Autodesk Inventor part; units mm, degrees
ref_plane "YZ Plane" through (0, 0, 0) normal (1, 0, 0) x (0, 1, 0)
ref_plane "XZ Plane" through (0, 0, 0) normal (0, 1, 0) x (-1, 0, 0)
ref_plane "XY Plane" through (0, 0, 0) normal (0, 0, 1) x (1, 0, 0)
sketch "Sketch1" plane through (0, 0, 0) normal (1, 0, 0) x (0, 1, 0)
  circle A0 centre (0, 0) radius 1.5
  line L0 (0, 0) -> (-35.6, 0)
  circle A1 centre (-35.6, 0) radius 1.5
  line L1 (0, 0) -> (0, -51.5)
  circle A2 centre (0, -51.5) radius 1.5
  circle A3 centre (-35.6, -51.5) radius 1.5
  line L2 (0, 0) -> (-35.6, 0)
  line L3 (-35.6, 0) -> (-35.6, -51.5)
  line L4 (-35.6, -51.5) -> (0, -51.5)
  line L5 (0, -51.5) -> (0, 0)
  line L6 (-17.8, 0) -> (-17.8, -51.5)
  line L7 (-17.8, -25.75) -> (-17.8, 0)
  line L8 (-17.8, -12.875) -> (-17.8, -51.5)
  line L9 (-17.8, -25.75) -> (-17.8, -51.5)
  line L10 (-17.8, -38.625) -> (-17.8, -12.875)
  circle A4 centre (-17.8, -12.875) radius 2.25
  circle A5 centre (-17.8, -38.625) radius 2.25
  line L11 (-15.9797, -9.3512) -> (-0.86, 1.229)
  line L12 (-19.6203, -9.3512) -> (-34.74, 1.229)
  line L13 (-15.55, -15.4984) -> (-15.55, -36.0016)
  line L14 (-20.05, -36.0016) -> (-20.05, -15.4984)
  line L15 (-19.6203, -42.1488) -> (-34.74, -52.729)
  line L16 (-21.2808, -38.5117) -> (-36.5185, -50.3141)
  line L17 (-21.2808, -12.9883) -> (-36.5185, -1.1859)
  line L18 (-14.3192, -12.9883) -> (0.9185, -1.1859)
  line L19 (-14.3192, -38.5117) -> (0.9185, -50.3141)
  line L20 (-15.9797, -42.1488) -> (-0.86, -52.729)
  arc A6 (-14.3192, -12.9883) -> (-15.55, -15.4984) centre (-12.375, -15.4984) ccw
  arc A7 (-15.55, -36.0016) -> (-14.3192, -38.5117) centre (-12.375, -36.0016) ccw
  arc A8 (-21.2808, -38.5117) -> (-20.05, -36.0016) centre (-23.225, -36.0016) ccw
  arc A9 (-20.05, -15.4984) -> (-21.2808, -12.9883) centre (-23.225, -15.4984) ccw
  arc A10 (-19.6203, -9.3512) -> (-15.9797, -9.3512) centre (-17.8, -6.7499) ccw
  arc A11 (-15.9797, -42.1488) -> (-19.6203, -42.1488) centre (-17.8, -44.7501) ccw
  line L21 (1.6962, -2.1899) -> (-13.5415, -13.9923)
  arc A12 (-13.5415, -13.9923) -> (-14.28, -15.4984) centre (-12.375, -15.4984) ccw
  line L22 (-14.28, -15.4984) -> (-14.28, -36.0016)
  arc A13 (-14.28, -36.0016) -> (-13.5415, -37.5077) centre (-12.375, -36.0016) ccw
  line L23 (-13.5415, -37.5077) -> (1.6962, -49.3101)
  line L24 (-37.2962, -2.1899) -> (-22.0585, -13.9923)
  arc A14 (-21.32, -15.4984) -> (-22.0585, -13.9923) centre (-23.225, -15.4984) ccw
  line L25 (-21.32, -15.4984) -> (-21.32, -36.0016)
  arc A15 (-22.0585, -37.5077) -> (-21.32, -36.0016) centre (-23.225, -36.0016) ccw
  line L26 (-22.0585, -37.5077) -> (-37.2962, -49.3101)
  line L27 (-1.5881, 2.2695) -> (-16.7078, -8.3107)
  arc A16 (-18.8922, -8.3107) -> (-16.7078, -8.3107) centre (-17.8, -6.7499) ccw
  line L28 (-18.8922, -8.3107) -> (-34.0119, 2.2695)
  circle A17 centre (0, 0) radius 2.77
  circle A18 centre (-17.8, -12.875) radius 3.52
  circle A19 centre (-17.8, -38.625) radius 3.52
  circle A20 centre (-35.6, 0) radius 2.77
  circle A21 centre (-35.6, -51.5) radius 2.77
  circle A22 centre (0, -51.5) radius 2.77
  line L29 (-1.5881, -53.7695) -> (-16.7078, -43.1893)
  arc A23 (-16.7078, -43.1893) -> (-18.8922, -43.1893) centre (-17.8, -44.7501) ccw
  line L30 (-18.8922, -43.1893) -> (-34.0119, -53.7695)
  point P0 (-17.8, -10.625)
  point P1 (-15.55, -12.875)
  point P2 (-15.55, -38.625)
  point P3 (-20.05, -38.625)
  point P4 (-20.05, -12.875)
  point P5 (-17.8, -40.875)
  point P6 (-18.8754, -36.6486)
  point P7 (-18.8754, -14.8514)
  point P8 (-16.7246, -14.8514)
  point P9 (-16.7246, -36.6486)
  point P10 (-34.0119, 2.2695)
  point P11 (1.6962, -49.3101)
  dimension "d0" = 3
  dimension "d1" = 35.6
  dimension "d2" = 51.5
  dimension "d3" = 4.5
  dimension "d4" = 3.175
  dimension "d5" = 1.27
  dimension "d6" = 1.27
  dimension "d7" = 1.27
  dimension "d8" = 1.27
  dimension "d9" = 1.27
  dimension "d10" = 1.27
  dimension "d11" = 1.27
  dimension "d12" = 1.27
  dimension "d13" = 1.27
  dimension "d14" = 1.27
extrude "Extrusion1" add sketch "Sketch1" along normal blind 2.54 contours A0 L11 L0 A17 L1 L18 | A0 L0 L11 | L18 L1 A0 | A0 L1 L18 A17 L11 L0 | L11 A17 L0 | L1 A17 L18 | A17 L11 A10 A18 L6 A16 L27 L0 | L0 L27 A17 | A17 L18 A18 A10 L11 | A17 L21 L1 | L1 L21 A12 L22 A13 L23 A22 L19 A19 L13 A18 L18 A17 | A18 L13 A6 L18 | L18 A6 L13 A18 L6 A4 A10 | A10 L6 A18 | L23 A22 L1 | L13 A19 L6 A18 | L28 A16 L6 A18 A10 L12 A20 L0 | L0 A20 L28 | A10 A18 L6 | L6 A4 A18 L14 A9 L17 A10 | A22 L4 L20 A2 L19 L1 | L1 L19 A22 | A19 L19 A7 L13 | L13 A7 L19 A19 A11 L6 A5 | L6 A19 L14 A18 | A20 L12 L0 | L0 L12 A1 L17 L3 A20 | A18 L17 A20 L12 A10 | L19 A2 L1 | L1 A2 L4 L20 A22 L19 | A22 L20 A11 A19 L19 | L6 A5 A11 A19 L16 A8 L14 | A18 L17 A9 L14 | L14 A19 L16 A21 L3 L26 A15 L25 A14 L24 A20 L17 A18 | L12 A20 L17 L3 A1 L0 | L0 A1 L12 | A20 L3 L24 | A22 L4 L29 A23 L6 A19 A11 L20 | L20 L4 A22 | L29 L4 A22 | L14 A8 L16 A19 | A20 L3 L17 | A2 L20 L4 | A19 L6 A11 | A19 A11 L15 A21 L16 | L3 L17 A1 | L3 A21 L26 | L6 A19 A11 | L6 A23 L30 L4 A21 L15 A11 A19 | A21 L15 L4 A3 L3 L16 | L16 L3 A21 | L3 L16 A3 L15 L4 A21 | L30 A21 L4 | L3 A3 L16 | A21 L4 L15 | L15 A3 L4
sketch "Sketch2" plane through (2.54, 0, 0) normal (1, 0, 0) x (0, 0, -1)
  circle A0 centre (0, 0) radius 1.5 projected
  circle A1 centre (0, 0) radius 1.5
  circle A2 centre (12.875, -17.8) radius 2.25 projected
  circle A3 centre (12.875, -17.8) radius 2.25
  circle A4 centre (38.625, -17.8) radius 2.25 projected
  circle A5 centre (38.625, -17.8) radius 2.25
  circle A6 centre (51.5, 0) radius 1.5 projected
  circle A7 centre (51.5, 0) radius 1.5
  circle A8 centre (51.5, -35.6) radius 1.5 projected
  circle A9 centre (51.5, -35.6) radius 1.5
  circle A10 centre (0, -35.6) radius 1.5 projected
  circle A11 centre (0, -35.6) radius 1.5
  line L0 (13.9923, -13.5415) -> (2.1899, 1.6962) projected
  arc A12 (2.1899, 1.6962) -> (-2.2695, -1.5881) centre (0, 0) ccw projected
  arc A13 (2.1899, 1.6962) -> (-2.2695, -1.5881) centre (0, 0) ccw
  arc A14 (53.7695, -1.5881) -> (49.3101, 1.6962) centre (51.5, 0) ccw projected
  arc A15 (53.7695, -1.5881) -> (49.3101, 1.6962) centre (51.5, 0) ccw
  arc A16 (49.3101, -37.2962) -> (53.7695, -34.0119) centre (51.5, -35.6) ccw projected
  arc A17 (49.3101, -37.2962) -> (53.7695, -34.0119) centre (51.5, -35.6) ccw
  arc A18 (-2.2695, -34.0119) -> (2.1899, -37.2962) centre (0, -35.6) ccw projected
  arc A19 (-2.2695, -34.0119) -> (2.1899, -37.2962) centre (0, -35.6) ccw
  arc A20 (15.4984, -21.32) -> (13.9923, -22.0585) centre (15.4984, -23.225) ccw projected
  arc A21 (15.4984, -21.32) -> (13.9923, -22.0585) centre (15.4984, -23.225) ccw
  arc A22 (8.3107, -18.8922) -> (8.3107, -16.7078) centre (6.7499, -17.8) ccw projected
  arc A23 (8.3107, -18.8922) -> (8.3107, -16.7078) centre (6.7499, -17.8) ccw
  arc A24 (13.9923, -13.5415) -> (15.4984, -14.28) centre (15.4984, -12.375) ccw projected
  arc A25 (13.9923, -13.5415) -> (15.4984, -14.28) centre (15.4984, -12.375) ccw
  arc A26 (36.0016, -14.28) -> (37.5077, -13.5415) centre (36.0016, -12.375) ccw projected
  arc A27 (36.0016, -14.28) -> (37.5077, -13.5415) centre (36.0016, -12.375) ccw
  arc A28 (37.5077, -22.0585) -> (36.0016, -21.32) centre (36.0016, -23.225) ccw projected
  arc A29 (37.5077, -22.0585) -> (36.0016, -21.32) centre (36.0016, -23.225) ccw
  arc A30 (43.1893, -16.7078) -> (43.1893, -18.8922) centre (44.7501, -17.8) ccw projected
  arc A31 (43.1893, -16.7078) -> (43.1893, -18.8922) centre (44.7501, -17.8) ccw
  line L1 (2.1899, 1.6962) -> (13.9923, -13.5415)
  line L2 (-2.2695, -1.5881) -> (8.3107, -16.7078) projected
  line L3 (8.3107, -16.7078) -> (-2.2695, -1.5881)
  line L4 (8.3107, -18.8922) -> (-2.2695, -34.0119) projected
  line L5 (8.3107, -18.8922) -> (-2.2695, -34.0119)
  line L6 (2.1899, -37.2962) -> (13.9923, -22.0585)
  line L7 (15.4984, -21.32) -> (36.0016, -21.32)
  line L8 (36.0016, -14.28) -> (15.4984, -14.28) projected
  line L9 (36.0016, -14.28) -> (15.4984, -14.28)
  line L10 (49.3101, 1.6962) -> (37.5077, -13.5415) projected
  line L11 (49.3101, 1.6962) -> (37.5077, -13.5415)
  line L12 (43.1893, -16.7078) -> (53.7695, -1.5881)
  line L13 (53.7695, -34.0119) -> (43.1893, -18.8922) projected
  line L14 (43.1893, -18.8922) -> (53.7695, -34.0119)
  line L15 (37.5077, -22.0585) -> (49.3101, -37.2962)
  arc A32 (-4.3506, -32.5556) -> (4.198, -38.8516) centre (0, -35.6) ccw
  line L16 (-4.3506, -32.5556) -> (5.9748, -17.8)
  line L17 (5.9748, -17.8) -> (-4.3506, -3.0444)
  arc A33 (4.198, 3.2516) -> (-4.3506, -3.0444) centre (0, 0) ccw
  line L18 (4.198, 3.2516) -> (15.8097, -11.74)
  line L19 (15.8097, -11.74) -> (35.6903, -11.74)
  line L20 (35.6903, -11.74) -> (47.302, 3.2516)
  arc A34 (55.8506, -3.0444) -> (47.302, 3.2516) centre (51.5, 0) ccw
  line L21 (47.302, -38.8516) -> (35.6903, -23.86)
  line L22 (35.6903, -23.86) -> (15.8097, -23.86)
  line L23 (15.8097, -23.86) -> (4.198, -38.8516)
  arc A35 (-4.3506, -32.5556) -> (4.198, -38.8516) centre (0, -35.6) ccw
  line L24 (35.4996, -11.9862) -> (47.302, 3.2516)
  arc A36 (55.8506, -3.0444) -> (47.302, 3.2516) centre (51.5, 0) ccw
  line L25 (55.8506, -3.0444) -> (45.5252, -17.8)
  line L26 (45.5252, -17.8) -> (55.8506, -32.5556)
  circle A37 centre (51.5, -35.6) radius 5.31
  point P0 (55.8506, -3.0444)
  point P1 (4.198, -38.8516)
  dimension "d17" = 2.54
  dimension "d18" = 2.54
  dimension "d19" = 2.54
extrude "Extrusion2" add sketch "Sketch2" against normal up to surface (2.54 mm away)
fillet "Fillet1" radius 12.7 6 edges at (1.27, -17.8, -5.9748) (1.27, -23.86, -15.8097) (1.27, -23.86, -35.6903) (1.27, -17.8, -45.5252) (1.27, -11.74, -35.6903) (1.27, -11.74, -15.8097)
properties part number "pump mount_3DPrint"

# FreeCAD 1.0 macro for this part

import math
import FreeCAD as App
import Part
import Sketcher
Q = App.Units.Quantity


def edges_at(feature, points):
    """Names of the edges that pass closest to the given points."""
    edges = feature.Shape.Edges
    near = lambda p: min(range(len(edges)), key=lambda i: edges[i].distToShape(Part.Vertex(*p))[0])
    return sorted({f"Edge{near(p) + 1}" for p in points})

doc = App.newDocument("Part")
body = doc.addObject("PartDesign::Body", "Body")

# Sketch on YZ plane
sketch1 = body.newObject("Sketcher::SketchObject", "Sketch")
sketch1.AttachmentSupport = (doc.getObject("YZ_Plane"), [""])
sketch1.MapMode = "FlatFace"
sketch1.addGeometry(Part.LineSegment(App.Vector(-1.5881, 2.2695, 0), App.Vector(-16.7078, -8.3107, 0)), False)
sketch1.addGeometry(Part.ArcOfCircle(Part.Circle(App.Vector(-17.8, -6.7499, 0), App.Vector(0, 0, 1), 1.904993), math.radians(-124.98315), math.radians(-55.01685)), False)
sketch1.addGeometry(Part.LineSegment(App.Vector(-18.8922, -8.3107, 0), App.Vector(-34.0119, 2.2695, 0)), False)
sketch1.addGeometry(Part.ArcOfCircle(Part.Circle(App.Vector(-35.6, 0, 0), App.Vector(0, 0, 1), 2.77), math.radians(55.0173), math.radians(232.240215)), False)
sketch1.addGeometry(Part.LineSegment(App.Vector(-37.2962, -2.1899, 0), App.Vector(-22.0585, -13.9923, 0)), False)
sketch1.addGeometry(Part.ArcOfCircle(Part.Circle(App.Vector(-23.225, -15.4984, 0), App.Vector(0, 0, 1), 1.905), math.radians(0), math.radians(52.24161)), False)
sketch1.addGeometry(Part.LineSegment(App.Vector(-21.32, -15.4984, 0), App.Vector(-21.32, -36.0016, 0)), False)
sketch1.addGeometry(Part.ArcOfCircle(Part.Circle(App.Vector(-23.225, -36.0016, 0), App.Vector(0, 0, 1), 1.905009), math.radians(-52.24161), math.radians(0)), False)
sketch1.addGeometry(Part.LineSegment(App.Vector(-22.0585, -37.5077, 0), App.Vector(-37.2962, -49.3101, 0)), False)
sketch1.addGeometry(Part.ArcOfCircle(Part.Circle(App.Vector(-35.6, -51.5, 0), App.Vector(0, 0, 1), 2.77), math.radians(127.759785), math.radians(304.9827)), False)
sketch1.addGeometry(Part.LineSegment(App.Vector(-34.0119, -53.7695, 0), App.Vector(-18.8922, -43.1893, 0)), False)
sketch1.addGeometry(Part.ArcOfCircle(Part.Circle(App.Vector(-17.8, -44.7501, 0), App.Vector(0, 0, 1), 1.904993), math.radians(55.01685), math.radians(124.98315)), False)
sketch1.addGeometry(Part.LineSegment(App.Vector(-16.7078, -43.1893, 0), App.Vector(-1.5881, -53.7695, 0)), False)
sketch1.addGeometry(Part.ArcOfCircle(Part.Circle(App.Vector(0, -51.5, 0), App.Vector(0, 0, 1), 2.77), math.radians(-124.9827), math.radians(52.240215)), False)
sketch1.addGeometry(Part.LineSegment(App.Vector(1.6962, -49.3101, 0), App.Vector(-13.5415, -37.5077, 0)), False)
sketch1.addGeometry(Part.ArcOfCircle(Part.Circle(App.Vector(-12.375, -36.0016, 0), App.Vector(0, 0, 1), 1.905), math.radians(180), math.radians(232.24161)), False)
sketch1.addGeometry(Part.LineSegment(App.Vector(-14.28, -36.0016, 0), App.Vector(-14.28, -15.4984, 0)), False)
sketch1.addGeometry(Part.ArcOfCircle(Part.Circle(App.Vector(-12.375, -15.4984, 0), App.Vector(0, 0, 1), 1.905009), math.radians(127.75839), math.radians(180)), False)
sketch1.addGeometry(Part.LineSegment(App.Vector(-13.5415, -13.9923, 0), App.Vector(1.6962, -2.1899, 0)), False)
sketch1.addGeometry(Part.ArcOfCircle(Part.Circle(App.Vector(0, 0, 0), App.Vector(0, 0, 1), 2.77), math.radians(-52.240215), math.radians(124.9827)), False)
sketch1.addGeometry(Part.Circle(App.Vector(0, 0, 0), App.Vector(0, 0, 1), 1.5), False)
sketch1.addGeometry(Part.Circle(App.Vector(-17.8, -12.875, 0), App.Vector(0, 0, 1), 2.25), False)
sketch1.addGeometry(Part.Circle(App.Vector(0, -51.5, 0), App.Vector(0, 0, 1), 1.5), False)
sketch1.addGeometry(Part.Circle(App.Vector(-17.8, -38.625, 0), App.Vector(0, 0, 1), 2.25), False)
sketch1.addGeometry(Part.Circle(App.Vector(-35.6, 0, 0), App.Vector(0, 0, 1), 1.5), False)
sketch1.addGeometry(Part.Circle(App.Vector(-35.6, -51.5, 0), App.Vector(0, 0, 1), 1.5), False)
sketch1.addConstraint(Sketcher.Constraint("Tangent", 0, 2, 1, 2))
sketch1.addConstraint(Sketcher.Constraint("Tangent", 1, 1, 2, 1))
sketch1.addConstraint(Sketcher.Constraint("Tangent", 2, 2, 3, 1))
sketch1.addConstraint(Sketcher.Constraint("Tangent", 3, 2, 4, 1))
sketch1.addConstraint(Sketcher.Constraint("Tangent", 4, 2, 5, 2))
sketch1.addConstraint(Sketcher.Constraint("Tangent", 5, 1, 6, 1))
sketch1.addConstraint(Sketcher.Constraint("Tangent", 6, 2, 7, 2))
sketch1.addConstraint(Sketcher.Constraint("Tangent", 7, 1, 8, 1))
sketch1.addConstraint(Sketcher.Constraint("Tangent", 8, 2, 9, 1))
sketch1.addConstraint(Sketcher.Constraint("Tangent", 9, 2, 10, 1))
sketch1.addConstraint(Sketcher.Constraint("Tangent", 10, 2, 11, 2))
sketch1.addConstraint(Sketcher.Constraint("Tangent", 11, 1, 12, 1))
sketch1.addConstraint(Sketcher.Constraint("Tangent", 12, 2, 13, 1))
sketch1.addConstraint(Sketcher.Constraint("Tangent", 13, 2, 14, 1))
sketch1.addConstraint(Sketcher.Constraint("Tangent", 14, 2, 15, 2))
sketch1.addConstraint(Sketcher.Constraint("Tangent", 15, 1, 16, 1))
sketch1.addConstraint(Sketcher.Constraint("Tangent", 16, 2, 17, 2))
sketch1.addConstraint(Sketcher.Constraint("Tangent", 17, 1, 18, 1))
sketch1.addConstraint(Sketcher.Constraint("Tangent", 18, 2, 19, 1))
sketch1.addConstraint(Sketcher.Constraint("Tangent", 19, 2, 0, 1))
sketch1.addConstraint(Sketcher.Constraint("Vertical", 6))
sketch1.addConstraint(Sketcher.Constraint("Vertical", 16))
sketch1.addConstraint(Sketcher.Constraint("Coincident", 19, 3, -1, 1))
sketch1.addConstraint(Sketcher.Constraint("Coincident", 20, 3, -1, 1))
sketch1.addConstraint(Sketcher.Constraint("Coincident", 22, 3, 13, 3))
sketch1.addConstraint(Sketcher.Constraint("Coincident", 24, 3, 3, 3))
sketch1.addConstraint(Sketcher.Constraint("Coincident", 25, 3, 9, 3))
sketch1.addConstraint(Sketcher.Constraint("Equal", 1, 5))
sketch1.addConstraint(Sketcher.Constraint("Equal", 5, 7))
sketch1.addConstraint(Sketcher.Constraint("Equal", 3, 9))
sketch1.addConstraint(Sketcher.Constraint("Equal", 7, 11))
sketch1.addConstraint(Sketcher.Constraint("Equal", 9, 13))
sketch1.addConstraint(Sketcher.Constraint("Equal", 11, 15))
sketch1.addConstraint(Sketcher.Constraint("Equal", 15, 17))
sketch1.addConstraint(Sketcher.Constraint("Equal", 13, 19))
sketch1.addConstraint(Sketcher.Constraint("Equal", 20, 22))
sketch1.addConstraint(Sketcher.Constraint("Equal", 21, 23))
sketch1.addConstraint(Sketcher.Constraint("Equal", 22, 24))
sketch1.addConstraint(Sketcher.Constraint("Equal", 24, 25))
sketch1.addConstraint(Sketcher.Constraint("PointOnObject", 3, 3, -1))
sketch1.addConstraint(Sketcher.Constraint("PointOnObject", 13, 3, -2))
sketch1.addConstraint(Sketcher.Constraint("Parallel", 0, 10))
sketch1.addConstraint(Sketcher.Constraint("Parallel", 2, 12))
sketch1.addConstraint(Sketcher.Constraint("Parallel", 4, 14))
sketch1.addConstraint(Sketcher.Constraint("Parallel", 8, 18))
sketch1.addConstraint(Sketcher.Constraint("Horizontal", 9, 3, 13, 3))
sketch1.addConstraint(Sketcher.Constraint("Horizontal", 7, 3, 15, 3))
sketch1.addConstraint(Sketcher.Constraint("Horizontal", 5, 3, 17, 3))
sketch1.addConstraint(Sketcher.Constraint("Horizontal", 0, 2, 1, 1))
sketch1.addConstraint(Sketcher.Constraint("Horizontal", 8, 2, 13, 2))
sketch1.addConstraint(Sketcher.Constraint("Vertical", 11, 3, 21, 3))
sketch1.addConstraint(Sketcher.Constraint("Vertical", 21, 3, 23, 3))
sketch1.addConstraint(Sketcher.Constraint("Diameter", 20, Q("0.1181 in")))
sketch1.addConstraint(Sketcher.Constraint("Diameter", 21, 4.5))
sketch1.addConstraint(Sketcher.Constraint("Radius", 1, Q("0.075 in")))
sketch1.addConstraint(Sketcher.Constraint("DistanceX", 3, 3, -1, 1, 35.6))
sketch1.addConstraint(Sketcher.Constraint("DistanceY", 9, 3, -1, 1, 51.5))
sketch1.addConstraint(Sketcher.Constraint("Angle", 4, Q("-37.7597 deg")))
sketch1.addConstraint(Sketcher.Constraint("Radius", 3, 2.77))
sketch1.addConstraint(Sketcher.Constraint("DistanceX", 1, 3, 0, 2, Q("0.043 in")))
sketch1.addConstraint(Sketcher.Constraint("DistanceY", 4, 2, 21, 3, Q("0.044 in")))
sketch1.addConstraint(Sketcher.Constraint("DistanceY", 23, 3, 7, 1, Q("0.044 in")))
sketch1.addConstraint(Sketcher.Constraint("DistanceY", 6, 2, 6, 1, 20.5032))
pad1 = body.newObject("PartDesign::Pad", "Pad")
pad1.Profile = sketch1
pad1.Length = Q("0.1 in")

# Sketch on YZ plane
sketch2 = body.newObject("Sketcher::SketchObject", "Sketch001")
sketch2.AttachmentSupport = (doc.getObject("YZ_Plane"), [""])
sketch2.MapMode = "FlatFace"
sketch2.AttachmentOffset = App.Placement(App.Vector(0, 0, 0.1 * 25.4), App.Rotation())
sketch2.addGeometry(Part.ArcOfCircle(Part.Circle(App.Vector(-35.6, 0, 0), App.Vector(0, 0, 1), 5.309999), math.radians(55.016996), math.radians(232.240094)), False)
sketch2.addGeometry(Part.LineSegment(App.Vector(-38.8516, -4.198, 0), App.Vector(-23.86, -15.8097, 0)), False)
sketch2.addGeometry(Part.LineSegment(App.Vector(-23.86, -15.8097, 0), App.Vector(-23.86, -35.6903, 0)), False)
sketch2.addGeometry(Part.LineSegment(App.Vector(-23.86, -35.6903, 0), App.Vector(-38.8516, -47.302, 0)), False)
sketch2.addGeometry(Part.ArcOfCircle(Part.Circle(App.Vector(-35.6, -51.5, 0), App.Vector(0, 0, 1), 5.31), math.radians(127.759906), math.radians(304.983004)), False)
sketch2.addGeometry(Part.LineSegment(App.Vector(-32.5556, -55.8506, 0), App.Vector(-17.8, -45.5252, 0)), False)
sketch2.addGeometry(Part.LineSegment(App.Vector(-17.8, -45.5252, 0), App.Vector(-3.0444, -55.8506, 0)), False)
sketch2.addGeometry(Part.ArcOfCircle(Part.Circle(App.Vector(0, -51.5, 0), App.Vector(0, 0, 1), 5.309999), math.radians(-124.983004), math.radians(52.240094)), False)
sketch2.addGeometry(Part.LineSegment(App.Vector(3.2516, -47.302, 0), App.Vector(-11.74, -35.6903, 0)), False)
sketch2.addGeometry(Part.LineSegment(App.Vector(-11.74, -35.6903, 0), App.Vector(-11.74, -15.8097, 0)), False)
sketch2.addGeometry(Part.LineSegment(App.Vector(-11.74, -15.8097, 0), App.Vector(3.2516, -4.198, 0)), False)
sketch2.addGeometry(Part.ArcOfCircle(Part.Circle(App.Vector(0, 0, 0), App.Vector(0, 0, 1), 5.310001), math.radians(-52.240094), math.radians(124.983004)), False)
sketch2.addGeometry(Part.LineSegment(App.Vector(-3.0444, 4.3506, 0), App.Vector(-17.8, -5.9748, 0)), False)
sketch2.addGeometry(Part.LineSegment(App.Vector(-17.8, -5.9748, 0), App.Vector(-32.5556, 4.3506, 0)), False)
sketch2.addGeometry(Part.Circle(App.Vector(-35.6, 0, 0), App.Vector(0, 0, 1), 1.5), False)
sketch2.addGeometry(Part.Circle(App.Vector(-17.8, -12.875, 0), App.Vector(0, 0, 1), 2.25), False)
sketch2.addGeometry(Part.Circle(App.Vector(-17.8, -38.625, 0), App.Vector(0, 0, 1), 2.25), False)
sketch2.addGeometry(Part.Circle(App.Vector(0, 0, 0), App.Vector(0, 0, 1), 1.5), False)
sketch2.addGeometry(Part.Circle(App.Vector(0, -51.5, 0), App.Vector(0, 0, 1), 1.5), False)
sketch2.addGeometry(Part.Circle(App.Vector(-35.6, -51.5, 0), App.Vector(0, 0, 1), 1.5), False)
sketch2.addConstraint(Sketcher.Constraint("Tangent", 0, 2, 1, 1))
sketch2.addConstraint(Sketcher.Constraint("Coincident", 1, 2, 2, 1))
sketch2.addConstraint(Sketcher.Constraint("Coincident", 2, 2, 3, 1))
sketch2.addConstraint(Sketcher.Constraint("Tangent", 3, 2, 4, 1))
sketch2.addConstraint(Sketcher.Constraint("Tangent", 4, 2, 5, 1))
sketch2.addConstraint(Sketcher.Constraint("Coincident", 5, 2, 6, 1))
sketch2.addConstraint(Sketcher.Constraint("Tangent", 6, 2, 7, 1))
sketch2.addConstraint(Sketcher.Constraint("Tangent", 7, 2, 8, 1))
sketch2.addConstraint(Sketcher.Constraint("Coincident", 8, 2, 9, 1))
sketch2.addConstraint(Sketcher.Constraint("Coincident", 9, 2, 10, 1))
sketch2.addConstraint(Sketcher.Constraint("Tangent", 10, 2, 11, 1))
sketch2.addConstraint(Sketcher.Constraint("Tangent", 11, 2, 12, 1))
sketch2.addConstraint(Sketcher.Constraint("Coincident", 12, 2, 13, 1))
sketch2.addConstraint(Sketcher.Constraint("Tangent", 13, 2, 0, 1))
sketch2.addConstraint(Sketcher.Constraint("Vertical", 2))
sketch2.addConstraint(Sketcher.Constraint("Vertical", 9))
sketch2.addConstraint(Sketcher.Constraint("Coincident", 11, 3, -1, 1))
sketch2.addConstraint(Sketcher.Constraint("Coincident", 17, 3, -1, 1))
sketch2.addConstraint(Sketcher.Constraint("Coincident", 14, 3, 0, 3))
sketch2.addConstraint(Sketcher.Constraint("Coincident", 18, 3, 7, 3))
sketch2.addConstraint(Sketcher.Constraint("Coincident", 19, 3, 4, 3))
sketch2.addConstraint(Sketcher.Constraint("Equal", 0, 4))
sketch2.addConstraint(Sketcher.Constraint("Equal", 4, 7))
sketch2.addConstraint(Sketcher.Constraint("Equal", 7, 11))
sketch2.addConstraint(Sketcher.Constraint("Equal", 15, 16))
sketch2.addConstraint(Sketcher.Constraint("Equal", 14, 17))
sketch2.addConstraint(Sketcher.Constraint("Equal", 17, 18))
sketch2.addConstraint(Sketcher.Constraint("Equal", 18, 19))
sketch2.addConstraint(Sketcher.Constraint("PointOnObject", 0, 3, -1))
sketch2.addConstraint(Sketcher.Constraint("PointOnObject", 7, 3, -2))
sketch2.addConstraint(Sketcher.Constraint("Parallel", 1, 8))
sketch2.addConstraint(Sketcher.Constraint("Parallel", 3, 10))
sketch2.addConstraint(Sketcher.Constraint("Parallel", 5, 12))
sketch2.addConstraint(Sketcher.Constraint("Parallel", 6, 13))
sketch2.addConstraint(Sketcher.Constraint("Horizontal", 4, 3, 7, 3))
sketch2.addConstraint(Sketcher.Constraint("Horizontal", 4, 2, 6, 2))
sketch2.addConstraint(Sketcher.Constraint("Horizontal", 3, 2, 7, 2))
sketch2.addConstraint(Sketcher.Constraint("Horizontal", 2, 2, 8, 2))
sketch2.addConstraint(Sketcher.Constraint("Horizontal", 1, 2, 9, 2))
sketch2.addConstraint(Sketcher.Constraint("Vertical", 15, 3, 16, 3))
sketch2.addConstraint(Sketcher.Constraint("Vertical", 16, 3, 5, 2))
sketch2.addConstraint(Sketcher.Constraint("Diameter", 14, Q("0.1181 in")))
sketch2.addConstraint(Sketcher.Constraint("Diameter", 15, 4.5))
sketch2.addConstraint(Sketcher.Constraint("Angle", 1, Q("-37.7595 deg")))
sketch2.addConstraint(Sketcher.Constraint("Radius", 0, 5.31))
sketch2.addConstraint(Sketcher.Constraint("DistanceY", 2, 2, 2, 1, Q("0.7827 in")))
sketch2.addConstraint(Sketcher.Constraint("DistanceY", 15, 3, -1, 1, Q("0.5069 in")))
sketch2.addConstraint(Sketcher.Constraint("DistanceX", 0, 2, -1, 1, Q("1.5296 in")))
sketch2.addConstraint(Sketcher.Constraint("DistanceX", 8, 2, -1, 1, Q("0.4622 in")))
sketch2.addConstraint(Sketcher.Constraint("DistanceY", 4, 3, 16, 3, Q("0.5069 in")))
sketch2.addConstraint(Sketcher.Constraint("DistanceY", 5, 2, 2, 2, Q("0.3872 in")))
pad2 = body.newObject("PartDesign::Pad", "Pad001")
pad2.Profile = sketch2
pad2.Length = Q("0.1 in")
pad2.Reversed = True
doc.recompute()

fillet = body.newObject("PartDesign::Fillet", "Fillet")
fillet.Base = (pad2, edges_at(pad2, [
    (1.27, -17.8, -5.975),
    (1.27, -23.86, -15.81),
    (1.27, -23.86, -35.69),
    (1.27, -17.8, -45.525),
    (1.27, -11.74, -35.69),
    (1.27, -11.74, -15.81),
]))
fillet.Radius = Q("0.5 in")

doc.recompute()
